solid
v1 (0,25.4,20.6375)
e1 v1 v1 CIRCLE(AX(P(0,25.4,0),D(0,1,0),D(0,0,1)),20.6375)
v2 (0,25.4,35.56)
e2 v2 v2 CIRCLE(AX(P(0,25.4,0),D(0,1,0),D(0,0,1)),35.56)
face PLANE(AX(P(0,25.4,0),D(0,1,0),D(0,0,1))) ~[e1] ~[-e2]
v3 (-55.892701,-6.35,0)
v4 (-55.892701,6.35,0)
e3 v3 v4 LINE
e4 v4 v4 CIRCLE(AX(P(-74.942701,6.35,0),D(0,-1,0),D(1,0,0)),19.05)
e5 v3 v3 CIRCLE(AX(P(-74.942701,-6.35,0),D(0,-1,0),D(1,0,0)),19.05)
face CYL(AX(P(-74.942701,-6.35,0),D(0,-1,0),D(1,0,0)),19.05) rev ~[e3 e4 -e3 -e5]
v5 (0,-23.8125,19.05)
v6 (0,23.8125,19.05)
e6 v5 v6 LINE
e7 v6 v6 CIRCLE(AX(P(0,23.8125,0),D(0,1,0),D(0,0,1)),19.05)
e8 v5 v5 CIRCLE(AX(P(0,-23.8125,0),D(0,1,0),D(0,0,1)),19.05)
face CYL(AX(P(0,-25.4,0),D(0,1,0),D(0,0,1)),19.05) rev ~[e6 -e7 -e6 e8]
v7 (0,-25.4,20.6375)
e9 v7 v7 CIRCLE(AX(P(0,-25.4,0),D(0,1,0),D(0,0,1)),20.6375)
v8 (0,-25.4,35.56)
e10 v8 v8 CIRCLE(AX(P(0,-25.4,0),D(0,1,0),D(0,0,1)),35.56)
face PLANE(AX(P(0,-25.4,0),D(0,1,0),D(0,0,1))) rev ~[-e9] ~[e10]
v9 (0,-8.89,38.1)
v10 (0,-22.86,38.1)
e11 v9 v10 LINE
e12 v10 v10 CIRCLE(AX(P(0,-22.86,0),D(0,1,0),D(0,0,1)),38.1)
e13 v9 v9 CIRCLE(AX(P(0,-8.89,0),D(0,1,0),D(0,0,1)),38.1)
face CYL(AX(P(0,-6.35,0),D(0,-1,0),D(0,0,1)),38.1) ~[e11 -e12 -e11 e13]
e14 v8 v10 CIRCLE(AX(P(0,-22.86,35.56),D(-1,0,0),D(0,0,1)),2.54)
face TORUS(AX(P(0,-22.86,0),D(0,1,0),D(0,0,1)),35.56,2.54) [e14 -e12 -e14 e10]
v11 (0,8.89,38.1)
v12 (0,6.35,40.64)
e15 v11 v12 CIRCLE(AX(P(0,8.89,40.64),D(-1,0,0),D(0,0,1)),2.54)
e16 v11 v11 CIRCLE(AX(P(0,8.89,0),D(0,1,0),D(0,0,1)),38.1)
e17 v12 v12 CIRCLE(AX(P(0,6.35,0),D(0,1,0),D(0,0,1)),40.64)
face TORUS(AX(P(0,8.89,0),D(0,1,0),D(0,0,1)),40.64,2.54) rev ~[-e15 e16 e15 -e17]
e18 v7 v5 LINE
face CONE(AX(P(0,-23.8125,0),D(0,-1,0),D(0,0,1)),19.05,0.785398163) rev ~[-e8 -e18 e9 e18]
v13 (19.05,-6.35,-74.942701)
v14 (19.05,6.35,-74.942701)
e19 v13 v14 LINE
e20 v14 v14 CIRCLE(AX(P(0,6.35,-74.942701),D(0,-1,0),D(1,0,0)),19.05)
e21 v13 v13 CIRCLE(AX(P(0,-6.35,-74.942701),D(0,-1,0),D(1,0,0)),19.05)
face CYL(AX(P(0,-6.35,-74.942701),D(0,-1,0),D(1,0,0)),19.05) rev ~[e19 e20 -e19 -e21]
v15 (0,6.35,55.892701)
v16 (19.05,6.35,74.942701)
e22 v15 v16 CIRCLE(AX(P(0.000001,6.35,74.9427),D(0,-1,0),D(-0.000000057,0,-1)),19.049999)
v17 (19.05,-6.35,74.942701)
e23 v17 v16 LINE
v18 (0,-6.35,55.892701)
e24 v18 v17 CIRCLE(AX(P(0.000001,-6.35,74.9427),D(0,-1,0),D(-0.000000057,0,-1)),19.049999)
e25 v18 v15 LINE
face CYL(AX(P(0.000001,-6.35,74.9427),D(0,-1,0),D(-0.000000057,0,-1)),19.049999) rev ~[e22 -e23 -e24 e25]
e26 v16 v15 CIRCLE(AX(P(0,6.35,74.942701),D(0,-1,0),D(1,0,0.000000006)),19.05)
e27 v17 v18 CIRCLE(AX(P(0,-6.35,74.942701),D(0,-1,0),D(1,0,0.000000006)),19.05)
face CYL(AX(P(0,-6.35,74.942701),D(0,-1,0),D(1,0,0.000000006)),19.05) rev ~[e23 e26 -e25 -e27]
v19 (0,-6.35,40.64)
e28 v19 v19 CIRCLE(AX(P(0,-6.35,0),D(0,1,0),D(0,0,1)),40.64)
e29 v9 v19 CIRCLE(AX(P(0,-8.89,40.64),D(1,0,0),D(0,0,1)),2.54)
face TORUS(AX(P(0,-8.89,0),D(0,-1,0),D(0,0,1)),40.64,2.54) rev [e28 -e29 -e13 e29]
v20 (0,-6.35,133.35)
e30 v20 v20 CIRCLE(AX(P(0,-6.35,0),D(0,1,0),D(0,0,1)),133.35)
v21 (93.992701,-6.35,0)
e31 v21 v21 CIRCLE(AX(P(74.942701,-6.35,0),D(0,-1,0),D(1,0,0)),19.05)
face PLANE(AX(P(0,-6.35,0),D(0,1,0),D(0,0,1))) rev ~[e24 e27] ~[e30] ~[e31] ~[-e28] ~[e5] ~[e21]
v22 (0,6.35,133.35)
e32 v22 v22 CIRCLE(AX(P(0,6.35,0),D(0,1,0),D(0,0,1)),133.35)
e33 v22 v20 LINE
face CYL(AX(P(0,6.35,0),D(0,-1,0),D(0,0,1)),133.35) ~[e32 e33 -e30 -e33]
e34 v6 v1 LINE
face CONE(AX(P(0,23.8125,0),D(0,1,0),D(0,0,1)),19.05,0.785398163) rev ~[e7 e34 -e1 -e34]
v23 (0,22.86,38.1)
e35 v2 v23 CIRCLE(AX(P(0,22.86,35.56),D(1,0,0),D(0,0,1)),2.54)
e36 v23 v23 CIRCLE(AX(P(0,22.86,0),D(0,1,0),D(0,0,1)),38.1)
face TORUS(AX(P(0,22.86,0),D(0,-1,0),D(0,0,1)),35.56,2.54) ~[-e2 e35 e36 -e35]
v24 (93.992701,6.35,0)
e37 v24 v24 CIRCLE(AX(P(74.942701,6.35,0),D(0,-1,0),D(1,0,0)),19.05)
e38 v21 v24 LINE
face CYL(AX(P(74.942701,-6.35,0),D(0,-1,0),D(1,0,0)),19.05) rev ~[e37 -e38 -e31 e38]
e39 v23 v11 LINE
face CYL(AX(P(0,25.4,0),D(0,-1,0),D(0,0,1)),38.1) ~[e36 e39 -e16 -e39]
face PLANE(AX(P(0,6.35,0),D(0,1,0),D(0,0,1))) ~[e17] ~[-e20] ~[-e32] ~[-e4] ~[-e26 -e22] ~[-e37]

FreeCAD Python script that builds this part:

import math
import FreeCAD as App
import Part
import Sketcher
from FreeCAD import Vector
Q = App.Units.Quantity


def edges_at(feature, points):
    """Names of the edges that pass closest to the given points."""
    edges = feature.Shape.Edges
    near = lambda p: min(range(len(edges)), key=lambda i: edges[i].distToShape(Part.Vertex(*p))[0])
    return sorted({f"Edge{near(p) + 1}" for p in points})


def add_polygon(sketch, points):
    """Adds a closed chain of lines whose ends are joined by coincident constraints."""
    first, n = sketch.GeometryCount, len(points)
    for a, b in zip(points, points[1:] + points[:1]):
        sketch.addGeometry(Part.LineSegment(App.Vector(*a, 0), App.Vector(*b, 0)), False)
    for i in range(n):
        sketch.addConstraint(Sketcher.Constraint("Coincident", first + i, 2, first + (i + 1) % n, 1))

doc = App.newDocument("Part")
body = doc.addObject("PartDesign::Body", "Body")

# Sketch on YZ plane
sketch1 = body.newObject("Sketcher::SketchObject", "Sketch")
sketch1.AttachmentSupport = (doc.getObject("YZ_Plane"), [""])
sketch1.MapMode = "FlatFace"
add_polygon(sketch1, [(-25, 19), (25, 19), (25, 38), (6, 38), (6, 133), (-6, 133), (-6, 38), (-25, 38)])  # lines 0-7
sketch1.addConstraint([
    Sketcher.Constraint("Horizontal", 0),
    Sketcher.Constraint("Vertical", 1),
    Sketcher.Constraint("Horizontal", 2),
    Sketcher.Constraint("Vertical", 3),
    Sketcher.Constraint("Horizontal", 4),
    Sketcher.Constraint("Vertical", 5),
    Sketcher.Constraint("Horizontal", 6),
    Sketcher.Constraint("Vertical", 7),
    Sketcher.Constraint("Symmetric", 2, 2, 5, 2, -2),
    Sketcher.Constraint("Equal", 2, 6),
    Sketcher.Constraint("Equal", 6, 1),
    Sketcher.Constraint("DistanceX", 0, 1, 0, 2, Q("2 in")),
    Sketcher.Constraint("DistanceX", 4, 2, 4, 1, Q("0.5 in")),
    Sketcher.Constraint("DistanceY", 3, 1, 3, 2, Q("3.75 in")),
    Sketcher.Constraint("DistanceY", -1, 1, 1, 2, Q("1.5 in")),
])
revolution = body.newObject("PartDesign::Revolution", "Revolution")
revolution.Profile = sketch1
revolution.ReferenceAxis = (sketch1, ["H_Axis"])
revolution.Angle = 360

# Sketch on XZ plane
sketch2 = body.newObject("Sketcher::SketchObject", "Sketch001")
sketch2.AttachmentSupport = (doc.getObject("XZ_Plane"), [""])
sketch2.MapMode = "FlatFace"
sketch2.AttachmentOffset = App.Placement(Vector(0, 0, 0.25 * 25.4), App.Rotation())
sketch2.addGeometry([
    Part.ArcOfCircle(Part.Circle(Vector(0, 75, 0), Vector(0, 0, 1), 19), math.radians(0), math.radians(270)),  # 0
    Part.ArcOfCircle(Part.Circle(Vector(0, 75, 0), Vector(0, 0, 1), 19), math.radians(-90), math.radians(0)),  # 1
    Part.Circle(Vector(-75, 0, 0), Vector(0, 0, 1), 19),  # 2
    Part.Circle(Vector(0, -75, 0), Vector(0, 0, 1), 19),  # 3
    Part.Circle(Vector(75, 0, 0), Vector(0, 0, 1), 19),  # 4
], False)
sketch2.addConstraint([
    Sketcher.Constraint("Tangent", 0, 1, 1, 2),
    Sketcher.Constraint("Coincident", 1, 1, 0, 2),
    Sketcher.Constraint("Equal", 1, 2),
    Sketcher.Constraint("Equal", 2, 3),
    Sketcher.Constraint("Equal", 3, 4),
    Sketcher.Constraint("Symmetric", 0, 3, 3, 3, -1, 1),
    Sketcher.Constraint("Symmetric", 2, 3, 4, 3, -1, 1),
    Sketcher.Constraint("PointOnObject", 0, 3, -2),
    Sketcher.Constraint("PointOnObject", 2, 3, -1),
    Sketcher.Constraint("PointOnObject", 1, 1, -2),
    Sketcher.Constraint("Horizontal", 1, 3, 0, 1),
    Sketcher.Constraint("Diameter", 2, Q("1.5 in")),
    Sketcher.Constraint("DistanceY", 3, 3, 1, 3, Q("5.901 in")),
    Sketcher.Constraint("DistanceX", 2, 3, 4, 3, Q("5.9010001 in")),
])
pocket1 = body.newObject("PartDesign::Pocket", "Pocket")
pocket1.Profile = sketch2
pocket1.Length = Q("1 in")
doc.recompute()

fillet = body.newObject("PartDesign::Fillet", "Fillet")
fillet.Base = (pocket1, edges_at(pocket1, [
    (0, -6.35, -38.1),
    (0, -25.4, -38.1),
    (0, 6.35, -38.1),
    (0, 25.4, -38.1),
]))
fillet.Radius = Q("0.1 in")
doc.recompute()

chamfer = body.newObject("PartDesign::Chamfer", "Chamfer")
chamfer.Base = (fillet, edges_at(fillet, [(0, -25.4, -19.05), (0, 25.4, -19.05)]))
chamfer.Size = Q("0.0625 in")

doc.recompute()
